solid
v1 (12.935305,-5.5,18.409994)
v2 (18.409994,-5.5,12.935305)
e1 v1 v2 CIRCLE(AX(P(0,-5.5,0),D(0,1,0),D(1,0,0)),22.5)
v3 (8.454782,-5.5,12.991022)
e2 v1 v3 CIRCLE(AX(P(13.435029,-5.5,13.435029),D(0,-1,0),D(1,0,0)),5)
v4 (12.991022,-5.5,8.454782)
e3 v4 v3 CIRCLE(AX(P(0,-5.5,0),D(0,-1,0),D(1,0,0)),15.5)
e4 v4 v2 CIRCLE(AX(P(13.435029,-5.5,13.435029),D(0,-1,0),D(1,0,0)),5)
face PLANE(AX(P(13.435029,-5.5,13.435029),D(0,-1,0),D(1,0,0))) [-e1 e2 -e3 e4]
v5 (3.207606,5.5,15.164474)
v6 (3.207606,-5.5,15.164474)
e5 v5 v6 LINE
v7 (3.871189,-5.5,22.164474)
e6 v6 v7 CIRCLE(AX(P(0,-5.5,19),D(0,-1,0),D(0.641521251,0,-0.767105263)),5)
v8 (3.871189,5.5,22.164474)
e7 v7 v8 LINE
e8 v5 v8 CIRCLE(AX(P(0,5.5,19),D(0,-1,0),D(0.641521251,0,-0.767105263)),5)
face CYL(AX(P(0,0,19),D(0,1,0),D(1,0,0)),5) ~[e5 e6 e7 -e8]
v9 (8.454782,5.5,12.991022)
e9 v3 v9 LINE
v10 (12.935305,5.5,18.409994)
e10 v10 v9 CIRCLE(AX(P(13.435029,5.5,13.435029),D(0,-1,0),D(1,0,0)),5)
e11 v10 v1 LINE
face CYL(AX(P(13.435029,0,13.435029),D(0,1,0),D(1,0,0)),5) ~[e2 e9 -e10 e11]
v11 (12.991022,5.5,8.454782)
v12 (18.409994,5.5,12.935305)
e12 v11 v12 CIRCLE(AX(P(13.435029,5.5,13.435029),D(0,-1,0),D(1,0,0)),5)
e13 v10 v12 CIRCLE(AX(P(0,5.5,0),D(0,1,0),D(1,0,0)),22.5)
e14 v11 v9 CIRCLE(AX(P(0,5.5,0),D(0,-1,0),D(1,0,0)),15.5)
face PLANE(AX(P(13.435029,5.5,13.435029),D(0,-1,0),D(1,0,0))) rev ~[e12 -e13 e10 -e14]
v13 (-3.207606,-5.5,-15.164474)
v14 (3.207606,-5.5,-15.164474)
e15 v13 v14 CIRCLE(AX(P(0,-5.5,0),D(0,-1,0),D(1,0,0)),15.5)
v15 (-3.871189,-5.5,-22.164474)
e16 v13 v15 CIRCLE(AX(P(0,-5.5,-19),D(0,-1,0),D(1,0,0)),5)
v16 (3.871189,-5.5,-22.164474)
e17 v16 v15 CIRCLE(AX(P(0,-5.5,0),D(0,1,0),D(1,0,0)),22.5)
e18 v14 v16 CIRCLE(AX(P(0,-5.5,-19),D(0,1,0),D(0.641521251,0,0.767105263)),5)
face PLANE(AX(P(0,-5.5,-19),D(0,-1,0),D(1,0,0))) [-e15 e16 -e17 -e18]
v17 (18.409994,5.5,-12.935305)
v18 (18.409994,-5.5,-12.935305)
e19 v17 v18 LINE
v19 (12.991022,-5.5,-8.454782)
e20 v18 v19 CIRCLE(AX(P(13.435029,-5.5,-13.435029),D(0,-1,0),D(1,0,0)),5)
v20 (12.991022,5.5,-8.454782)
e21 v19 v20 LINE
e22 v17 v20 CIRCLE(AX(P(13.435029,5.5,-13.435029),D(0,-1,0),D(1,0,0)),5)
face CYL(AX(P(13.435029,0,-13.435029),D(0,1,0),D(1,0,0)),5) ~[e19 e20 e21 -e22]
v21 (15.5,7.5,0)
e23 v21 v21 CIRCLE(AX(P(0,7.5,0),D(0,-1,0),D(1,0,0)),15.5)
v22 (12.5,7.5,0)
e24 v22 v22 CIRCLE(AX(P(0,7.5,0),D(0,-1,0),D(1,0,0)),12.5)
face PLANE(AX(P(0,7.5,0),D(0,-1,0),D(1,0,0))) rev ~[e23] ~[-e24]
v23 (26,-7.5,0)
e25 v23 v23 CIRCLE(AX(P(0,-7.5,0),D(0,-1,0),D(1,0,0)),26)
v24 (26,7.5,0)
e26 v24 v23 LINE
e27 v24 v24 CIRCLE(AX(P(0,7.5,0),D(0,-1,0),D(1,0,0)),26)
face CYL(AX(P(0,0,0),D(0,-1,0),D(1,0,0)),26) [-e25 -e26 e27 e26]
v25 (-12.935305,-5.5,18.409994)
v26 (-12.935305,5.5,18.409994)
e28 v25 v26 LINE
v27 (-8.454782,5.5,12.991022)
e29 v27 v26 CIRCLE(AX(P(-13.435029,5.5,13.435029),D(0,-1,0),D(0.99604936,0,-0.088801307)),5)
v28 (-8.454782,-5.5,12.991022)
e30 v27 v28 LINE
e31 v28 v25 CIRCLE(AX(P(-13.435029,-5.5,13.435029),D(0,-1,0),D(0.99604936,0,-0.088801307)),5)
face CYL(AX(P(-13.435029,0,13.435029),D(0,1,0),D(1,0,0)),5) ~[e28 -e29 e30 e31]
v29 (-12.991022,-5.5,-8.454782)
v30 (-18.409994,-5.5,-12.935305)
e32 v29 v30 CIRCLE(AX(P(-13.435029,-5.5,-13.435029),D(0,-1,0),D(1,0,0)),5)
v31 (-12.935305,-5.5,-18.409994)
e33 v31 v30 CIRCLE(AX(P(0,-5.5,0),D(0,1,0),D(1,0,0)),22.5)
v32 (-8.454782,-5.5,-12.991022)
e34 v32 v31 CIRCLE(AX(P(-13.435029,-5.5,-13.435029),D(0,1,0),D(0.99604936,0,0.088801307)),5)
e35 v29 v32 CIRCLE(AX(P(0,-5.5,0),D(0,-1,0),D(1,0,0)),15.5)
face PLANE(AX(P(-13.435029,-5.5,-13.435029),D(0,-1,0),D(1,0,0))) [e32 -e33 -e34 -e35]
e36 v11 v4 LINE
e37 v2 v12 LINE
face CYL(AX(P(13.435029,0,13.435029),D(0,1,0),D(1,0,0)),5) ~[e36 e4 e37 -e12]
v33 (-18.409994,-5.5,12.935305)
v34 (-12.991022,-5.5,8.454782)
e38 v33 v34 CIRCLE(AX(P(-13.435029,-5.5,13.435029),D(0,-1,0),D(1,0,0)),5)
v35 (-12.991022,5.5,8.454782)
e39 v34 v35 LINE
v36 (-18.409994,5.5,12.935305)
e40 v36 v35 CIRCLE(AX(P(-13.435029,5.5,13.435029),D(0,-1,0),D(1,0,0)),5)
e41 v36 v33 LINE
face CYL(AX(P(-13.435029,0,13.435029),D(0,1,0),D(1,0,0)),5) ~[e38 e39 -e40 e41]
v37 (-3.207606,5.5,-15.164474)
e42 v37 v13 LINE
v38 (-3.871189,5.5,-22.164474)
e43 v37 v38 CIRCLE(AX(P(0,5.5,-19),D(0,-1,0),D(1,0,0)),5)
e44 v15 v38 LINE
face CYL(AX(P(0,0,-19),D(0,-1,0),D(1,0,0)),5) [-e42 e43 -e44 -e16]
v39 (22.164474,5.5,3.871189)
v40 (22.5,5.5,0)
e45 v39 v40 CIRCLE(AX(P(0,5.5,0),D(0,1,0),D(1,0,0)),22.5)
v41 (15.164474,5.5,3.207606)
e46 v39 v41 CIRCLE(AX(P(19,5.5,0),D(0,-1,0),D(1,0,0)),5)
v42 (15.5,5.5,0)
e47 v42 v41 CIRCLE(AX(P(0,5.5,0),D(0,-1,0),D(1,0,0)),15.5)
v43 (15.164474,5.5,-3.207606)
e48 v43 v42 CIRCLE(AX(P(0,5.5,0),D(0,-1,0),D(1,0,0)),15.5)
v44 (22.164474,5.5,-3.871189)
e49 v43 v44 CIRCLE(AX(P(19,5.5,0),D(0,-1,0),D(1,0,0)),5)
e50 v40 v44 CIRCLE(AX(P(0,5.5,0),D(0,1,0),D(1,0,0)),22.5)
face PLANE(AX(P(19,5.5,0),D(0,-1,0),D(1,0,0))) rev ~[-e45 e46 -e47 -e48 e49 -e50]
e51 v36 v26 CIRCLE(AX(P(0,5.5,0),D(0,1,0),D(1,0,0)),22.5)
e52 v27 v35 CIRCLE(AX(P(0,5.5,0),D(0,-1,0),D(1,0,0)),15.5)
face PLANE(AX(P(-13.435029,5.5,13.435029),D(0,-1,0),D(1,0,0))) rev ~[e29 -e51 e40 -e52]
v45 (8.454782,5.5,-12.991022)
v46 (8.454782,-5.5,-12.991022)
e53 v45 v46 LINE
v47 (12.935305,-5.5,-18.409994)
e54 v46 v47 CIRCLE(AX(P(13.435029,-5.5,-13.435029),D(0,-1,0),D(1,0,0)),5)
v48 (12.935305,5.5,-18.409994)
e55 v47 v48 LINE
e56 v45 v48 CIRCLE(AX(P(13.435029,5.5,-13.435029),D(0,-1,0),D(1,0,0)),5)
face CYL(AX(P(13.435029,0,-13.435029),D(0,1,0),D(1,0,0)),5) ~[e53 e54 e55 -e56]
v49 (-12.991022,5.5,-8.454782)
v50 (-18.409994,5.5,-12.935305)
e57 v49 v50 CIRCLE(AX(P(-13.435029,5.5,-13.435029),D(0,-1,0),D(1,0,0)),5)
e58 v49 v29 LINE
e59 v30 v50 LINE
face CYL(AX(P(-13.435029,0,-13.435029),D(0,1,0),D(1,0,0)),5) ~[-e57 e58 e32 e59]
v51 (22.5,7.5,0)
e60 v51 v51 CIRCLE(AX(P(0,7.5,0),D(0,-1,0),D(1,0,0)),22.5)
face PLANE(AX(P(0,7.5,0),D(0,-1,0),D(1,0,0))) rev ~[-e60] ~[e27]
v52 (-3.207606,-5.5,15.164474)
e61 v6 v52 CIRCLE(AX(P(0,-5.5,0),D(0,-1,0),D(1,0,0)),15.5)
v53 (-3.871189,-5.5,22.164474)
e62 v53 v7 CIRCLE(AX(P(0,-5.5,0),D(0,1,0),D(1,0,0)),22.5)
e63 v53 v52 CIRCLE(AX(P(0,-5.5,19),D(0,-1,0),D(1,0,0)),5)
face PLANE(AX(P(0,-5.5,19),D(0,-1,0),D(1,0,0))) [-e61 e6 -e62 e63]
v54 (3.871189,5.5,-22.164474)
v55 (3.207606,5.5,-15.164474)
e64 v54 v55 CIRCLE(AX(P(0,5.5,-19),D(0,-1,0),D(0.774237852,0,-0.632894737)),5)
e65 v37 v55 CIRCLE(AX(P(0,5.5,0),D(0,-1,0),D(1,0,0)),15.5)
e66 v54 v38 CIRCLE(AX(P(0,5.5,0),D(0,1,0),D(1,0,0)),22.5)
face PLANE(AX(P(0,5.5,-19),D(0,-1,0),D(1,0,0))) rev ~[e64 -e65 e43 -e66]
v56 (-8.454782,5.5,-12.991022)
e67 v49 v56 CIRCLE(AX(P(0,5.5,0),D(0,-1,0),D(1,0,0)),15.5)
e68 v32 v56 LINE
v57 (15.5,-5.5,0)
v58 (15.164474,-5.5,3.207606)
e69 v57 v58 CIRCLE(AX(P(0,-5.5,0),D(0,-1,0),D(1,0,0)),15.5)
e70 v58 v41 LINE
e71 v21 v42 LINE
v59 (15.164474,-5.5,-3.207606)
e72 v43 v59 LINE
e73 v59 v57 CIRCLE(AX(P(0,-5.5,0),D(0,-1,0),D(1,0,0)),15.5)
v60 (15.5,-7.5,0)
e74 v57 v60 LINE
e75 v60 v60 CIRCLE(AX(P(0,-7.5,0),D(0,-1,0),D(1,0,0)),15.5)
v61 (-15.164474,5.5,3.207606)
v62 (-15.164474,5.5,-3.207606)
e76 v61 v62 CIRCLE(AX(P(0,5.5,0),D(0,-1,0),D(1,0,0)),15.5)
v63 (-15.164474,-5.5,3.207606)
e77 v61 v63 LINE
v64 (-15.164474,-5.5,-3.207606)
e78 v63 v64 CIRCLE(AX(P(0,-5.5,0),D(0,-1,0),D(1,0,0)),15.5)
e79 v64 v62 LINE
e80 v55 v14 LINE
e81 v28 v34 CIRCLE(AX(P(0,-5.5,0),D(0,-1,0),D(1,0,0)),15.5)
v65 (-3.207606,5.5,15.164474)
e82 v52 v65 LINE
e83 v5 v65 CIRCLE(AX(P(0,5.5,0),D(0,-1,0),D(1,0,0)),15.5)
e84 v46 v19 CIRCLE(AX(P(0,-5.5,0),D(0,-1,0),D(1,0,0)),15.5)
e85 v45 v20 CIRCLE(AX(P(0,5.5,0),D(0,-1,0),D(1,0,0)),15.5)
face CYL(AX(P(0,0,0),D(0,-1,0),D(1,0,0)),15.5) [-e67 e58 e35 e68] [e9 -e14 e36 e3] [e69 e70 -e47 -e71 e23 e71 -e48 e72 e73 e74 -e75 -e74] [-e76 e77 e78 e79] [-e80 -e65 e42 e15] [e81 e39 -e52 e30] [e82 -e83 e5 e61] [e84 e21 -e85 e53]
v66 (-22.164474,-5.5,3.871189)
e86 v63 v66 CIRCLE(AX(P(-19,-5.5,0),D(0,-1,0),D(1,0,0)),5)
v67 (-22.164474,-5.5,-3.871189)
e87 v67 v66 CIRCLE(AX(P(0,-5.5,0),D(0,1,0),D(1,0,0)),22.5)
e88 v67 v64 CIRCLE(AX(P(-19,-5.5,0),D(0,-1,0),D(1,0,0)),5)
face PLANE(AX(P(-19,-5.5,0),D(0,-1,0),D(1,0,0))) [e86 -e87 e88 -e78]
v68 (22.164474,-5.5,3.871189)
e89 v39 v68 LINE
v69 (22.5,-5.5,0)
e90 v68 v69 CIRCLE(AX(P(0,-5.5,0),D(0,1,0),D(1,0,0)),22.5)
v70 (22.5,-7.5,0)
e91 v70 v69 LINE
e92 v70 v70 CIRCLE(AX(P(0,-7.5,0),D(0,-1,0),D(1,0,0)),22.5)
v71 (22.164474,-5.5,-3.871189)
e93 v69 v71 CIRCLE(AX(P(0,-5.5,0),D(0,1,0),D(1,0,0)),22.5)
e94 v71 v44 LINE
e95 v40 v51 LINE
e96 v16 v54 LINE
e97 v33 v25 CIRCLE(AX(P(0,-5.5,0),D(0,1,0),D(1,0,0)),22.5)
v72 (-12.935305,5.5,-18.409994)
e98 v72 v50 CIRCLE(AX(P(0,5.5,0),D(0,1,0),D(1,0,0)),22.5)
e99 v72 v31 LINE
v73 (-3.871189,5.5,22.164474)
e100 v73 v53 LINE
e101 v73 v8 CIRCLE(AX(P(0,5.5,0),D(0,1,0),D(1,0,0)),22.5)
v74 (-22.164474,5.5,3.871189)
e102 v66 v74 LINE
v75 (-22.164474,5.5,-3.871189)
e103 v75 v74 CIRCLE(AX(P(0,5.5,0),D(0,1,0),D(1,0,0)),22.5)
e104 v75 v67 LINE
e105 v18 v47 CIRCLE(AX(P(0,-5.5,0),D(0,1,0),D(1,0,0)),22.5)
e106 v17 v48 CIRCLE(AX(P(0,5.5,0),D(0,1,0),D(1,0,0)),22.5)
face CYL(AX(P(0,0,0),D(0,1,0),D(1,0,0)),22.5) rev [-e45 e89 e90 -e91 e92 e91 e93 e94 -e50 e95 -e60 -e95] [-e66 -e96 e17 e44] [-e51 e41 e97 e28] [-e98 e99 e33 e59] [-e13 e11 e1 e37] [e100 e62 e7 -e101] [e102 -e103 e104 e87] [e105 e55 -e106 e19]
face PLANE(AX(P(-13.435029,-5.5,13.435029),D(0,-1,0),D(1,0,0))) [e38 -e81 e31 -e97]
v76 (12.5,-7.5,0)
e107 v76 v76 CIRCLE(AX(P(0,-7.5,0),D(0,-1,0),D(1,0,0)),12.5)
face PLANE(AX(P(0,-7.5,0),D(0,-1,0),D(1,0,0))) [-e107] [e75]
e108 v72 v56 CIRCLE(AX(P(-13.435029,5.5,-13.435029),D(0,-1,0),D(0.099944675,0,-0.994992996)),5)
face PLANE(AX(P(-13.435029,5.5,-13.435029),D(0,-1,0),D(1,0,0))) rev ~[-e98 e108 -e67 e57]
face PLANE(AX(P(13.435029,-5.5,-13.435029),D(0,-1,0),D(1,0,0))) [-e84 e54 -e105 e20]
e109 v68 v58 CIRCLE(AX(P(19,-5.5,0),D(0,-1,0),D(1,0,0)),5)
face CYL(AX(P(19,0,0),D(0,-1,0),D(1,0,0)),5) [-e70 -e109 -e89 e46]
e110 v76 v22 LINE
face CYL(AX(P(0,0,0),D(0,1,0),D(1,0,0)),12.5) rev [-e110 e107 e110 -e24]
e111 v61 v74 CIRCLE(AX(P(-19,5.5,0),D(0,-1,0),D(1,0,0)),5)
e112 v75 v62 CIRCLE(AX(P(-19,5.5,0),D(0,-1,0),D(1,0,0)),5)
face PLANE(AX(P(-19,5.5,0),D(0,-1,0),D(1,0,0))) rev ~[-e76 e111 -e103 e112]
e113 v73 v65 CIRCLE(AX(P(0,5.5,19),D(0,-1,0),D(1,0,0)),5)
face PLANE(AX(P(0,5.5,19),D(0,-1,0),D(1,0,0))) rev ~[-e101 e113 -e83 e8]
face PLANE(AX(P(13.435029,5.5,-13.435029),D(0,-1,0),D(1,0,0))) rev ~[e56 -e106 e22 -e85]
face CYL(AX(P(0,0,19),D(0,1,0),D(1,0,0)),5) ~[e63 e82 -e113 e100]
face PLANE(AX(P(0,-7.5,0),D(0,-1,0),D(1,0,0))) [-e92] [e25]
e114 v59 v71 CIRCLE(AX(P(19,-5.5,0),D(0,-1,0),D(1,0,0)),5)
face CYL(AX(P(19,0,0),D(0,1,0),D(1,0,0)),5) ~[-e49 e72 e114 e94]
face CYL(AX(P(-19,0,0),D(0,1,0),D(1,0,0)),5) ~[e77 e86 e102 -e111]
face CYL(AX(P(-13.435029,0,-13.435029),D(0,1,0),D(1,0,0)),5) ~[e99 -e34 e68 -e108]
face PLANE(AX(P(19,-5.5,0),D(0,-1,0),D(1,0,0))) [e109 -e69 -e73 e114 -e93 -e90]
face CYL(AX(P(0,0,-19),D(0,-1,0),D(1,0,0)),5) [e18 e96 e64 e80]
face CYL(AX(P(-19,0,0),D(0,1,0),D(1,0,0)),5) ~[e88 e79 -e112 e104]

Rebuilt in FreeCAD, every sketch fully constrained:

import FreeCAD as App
import Part
import Sketcher
from FreeCAD import Vector

doc = App.newDocument("Part")
body = doc.addObject("PartDesign::Body", "Body")

sketch1 = body.newObject("Sketcher::SketchObject", "Sketch")
sketch1.AttachmentSupport = (doc.getObject("XZ_Plane"), [""])
sketch1.MapMode = "FlatFace"
sketch1.addGeometry([
    Part.Circle(Vector(0, 0, 0), Vector(0, 0, 1), 16),
    Part.Circle(Vector(0, 0, 0), Vector(0, 0, 1), 12),
], False)
sketch1.addConstraint([
    Sketcher.Constraint("Coincident", 0, 3, -1, 1),
    Sketcher.Constraint("Coincident", 1, 3, -1, 1),
    Sketcher.Constraint("Diameter", 0, 31.0),
    Sketcher.Constraint("Diameter", 1, 25.0),
])
pad1 = body.newObject("PartDesign::Pad", "Pad")
pad1.Profile = sketch1
pad1.Length = 15
pad1.Midplane = True
body2 = doc.addObject("PartDesign::Body", "Body001")

sketch2 = body2.newObject("Sketcher::SketchObject", "Sketch001")
sketch2.AttachmentSupport = (doc.getObject("XZ_Plane001"), [""])
sketch2.MapMode = "FlatFace"
sketch2.addGeometry([
    Part.Circle(Vector(0, 0, 0), Vector(0, 0, 1), 26),
    Part.Circle(Vector(0, 0, 0), Vector(0, 0, 1), 22),
], False)
sketch2.addConstraint([
    Sketcher.Constraint("Coincident", 0, 3, -1, 1),
    Sketcher.Constraint("Coincident", 1, 3, -1, 1),
    Sketcher.Constraint("Diameter", 0, 52.0),
    Sketcher.Constraint("Diameter", 1, 45.0),
])
pad2 = body2.newObject("PartDesign::Pad", "Pad001")
pad2.Profile = sketch2
pad2.Length = 15
pad2.Midplane = True
body.AllowCompound = True
doc.recompute()

boolean = body.newObject("PartDesign::Boolean", "Boolean")
boolean.Type = "Fuse"
boolean.addObjects([body2])

sketch3 = body.newObject("Sketcher::SketchObject", "Sketch002")
sketch3.AttachmentSupport = (doc.getObject("XZ_Plane"), [""])
sketch3.MapMode = "FlatFace"
sketch3.addGeometry([
    Part.Circle(Vector(-13, 13, 0), Vector(0, 0, 1), 5),
    Part.Circle(Vector(0, 19, 0), Vector(0, 0, 1), 5),
    Part.Circle(Vector(13, 13, 0), Vector(0, 0, 1), 5),
    Part.Circle(Vector(19, 0, 0), Vector(0, 0, 1), 5),
    Part.Circle(Vector(-19, 0, 0), Vector(0, 0, 1), 5),
    Part.Circle(Vector(-13, -13, 0), Vector(0, 0, 1), 5),
    Part.Circle(Vector(13, -13, 0), Vector(0, 0, 1), 5),
    Part.Circle(Vector(0, -19, 0), Vector(0, 0, 1), 5),
], False)
sketch3.addConstraint([
    Sketcher.Constraint("Equal", 0, 1),
    Sketcher.Constraint("Equal", 1, 2),
    Sketcher.Constraint("Equal", 2, 3),
    Sketcher.Constraint("Equal", 3, 4),
    Sketcher.Constraint("Equal", 4, 5),
    Sketcher.Constraint("Equal", 5, 6),
    Sketcher.Constraint("Equal", 6, 7),
    Sketcher.Constraint("Symmetric", 3, 3, 4, 3, -1, 1),
    Sketcher.Constraint("Symmetric", 2, 3, 5, 3, -1, 1),
    Sketcher.Constraint("Symmetric", 0, 3, 6, 3, -1, 1),
    Sketcher.Constraint("Symmetric", 1, 3, 7, 3, -1, 1),
    Sketcher.Constraint("Symmetric", 0, 3, 2, 3, -2),
    Sketcher.Constraint("PointOnObject", 1, 3, -2),
    Sketcher.Constraint("PointOnObject", 3, 3, -1),
    Sketcher.Constraint("Diameter", 0, 10.0),
    Sketcher.Constraint("DistanceY", -1, 1, 1, 3, 19.0),
    Sketcher.Constraint("DistanceX", -1, 1, 3, 3, 19.0),
    Sketcher.Constraint("DistanceX", 0, 3, -1, 1, 13.435029),
    Sketcher.Constraint("DistanceY", -1, 1, 0, 3, 13.435029),
])
pad3 = body.newObject("PartDesign::Pad", "Pad002")
pad3.Profile = sketch3
pad3.Length = 11
pad3.Midplane = True

doc.recompute()
